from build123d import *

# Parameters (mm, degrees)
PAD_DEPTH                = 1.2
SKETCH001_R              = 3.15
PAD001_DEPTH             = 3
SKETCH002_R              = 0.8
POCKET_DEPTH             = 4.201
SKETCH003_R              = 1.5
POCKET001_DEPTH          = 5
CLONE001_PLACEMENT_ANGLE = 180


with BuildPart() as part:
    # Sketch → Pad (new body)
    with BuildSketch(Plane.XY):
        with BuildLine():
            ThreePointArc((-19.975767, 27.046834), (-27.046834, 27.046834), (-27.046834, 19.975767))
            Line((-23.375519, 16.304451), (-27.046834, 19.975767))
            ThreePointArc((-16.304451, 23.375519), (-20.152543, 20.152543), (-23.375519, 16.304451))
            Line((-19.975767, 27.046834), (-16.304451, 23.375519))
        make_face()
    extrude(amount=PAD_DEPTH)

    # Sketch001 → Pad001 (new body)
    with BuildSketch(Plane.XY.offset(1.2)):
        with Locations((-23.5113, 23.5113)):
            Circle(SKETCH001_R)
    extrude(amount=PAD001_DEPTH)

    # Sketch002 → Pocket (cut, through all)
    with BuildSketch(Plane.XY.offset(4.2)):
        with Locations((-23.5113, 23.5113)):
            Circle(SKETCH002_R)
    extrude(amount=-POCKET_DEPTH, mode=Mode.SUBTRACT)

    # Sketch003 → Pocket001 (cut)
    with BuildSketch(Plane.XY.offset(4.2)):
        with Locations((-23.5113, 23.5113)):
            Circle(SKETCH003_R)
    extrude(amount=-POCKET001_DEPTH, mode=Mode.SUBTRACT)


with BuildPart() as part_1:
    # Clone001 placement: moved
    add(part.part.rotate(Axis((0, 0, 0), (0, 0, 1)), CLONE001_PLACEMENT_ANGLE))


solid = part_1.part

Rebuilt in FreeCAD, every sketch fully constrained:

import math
import FreeCAD as App
import Part
import Sketcher

V = App.Vector
Q = App.Units.Quantity

doc = App.newDocument("Part")
body = doc.addObject("PartDesign::Body", "Body")

sketch1 = body.newObject("Sketcher::SketchObject", "Sketch")
sketch1.AttachmentSupport = (doc.getObject("XY_Plane"), [""])
sketch1.MapMode = "FlatFace"
sketch1.addGeometry([
    Part.ArcOfCircle(Part.Circle(V(-23.5, 23.5, 0), V(0, 0, 1), 5), math.radians(45), math.radians(225)),
    Part.LineSegment(V(-27, 20, 0), V(-23.4, 16.3, 0)),
    Part.ArcOfCircle(Part.Circle(V(0, 0, 0), V(0, 0, 1), 28.5), math.radians(125), math.radians(145)),
    Part.LineSegment(V(-16.3, 23.4, 0), V(-20, 27, 0)),
], False)
sketch1.addConstraint([
    Sketcher.Constraint("Tangent", 0, 2, 1, 1),
    Sketcher.Constraint("Coincident", 1, 2, 2, 2),
    Sketcher.Constraint("Coincident", 2, 1, 3, 1),
    Sketcher.Constraint("Tangent", 3, 2, 0, 1),
    Sketcher.Constraint("Parallel", 1, 3),
    Sketcher.Constraint("Equal", 1, 3),
    Sketcher.Constraint("Radius", 0, Q("4.999999 mm")),
    Sketcher.Constraint("Angle", 1, Q("-45.000008 deg")),
    Sketcher.Constraint("Radius", 2, Q("28.500036 mm")),
    Sketcher.Constraint("DistanceX", 0, 3, -1, 1, Q("23.511301 mm")),
    Sketcher.Constraint("DistanceY", -1, 1, 0, 3, Q("23.511301 mm")),
    Sketcher.Constraint("DistanceX", 1, 2, -1, 1, Q("23.375519 mm")),
])
pad1 = body.newObject("PartDesign::Pad", "Pad")
pad1.Profile = sketch1
pad1.Length = 1.2

sketch2 = body.newObject("Sketcher::SketchObject", "Sketch001")
sketch2.AttachmentSupport = (doc.getObject("XY_Plane"), [""])
sketch2.MapMode = "FlatFace"
sketch2.AttachmentOffset = App.Placement(V(0, 0, 1.2), App.Rotation())
sketch2.addGeometry(Part.Circle(V(-23.5, 23.5, 0), V(0, 0, 1), 3.1), False)
sketch2.addConstraint([
    Sketcher.Constraint("Diameter", 0, Q("6.3 mm")),
    Sketcher.Constraint("DistanceX", 0, 3, -1, 1, Q("23.5113 mm")),
    Sketcher.Constraint("DistanceY", -1, 1, 0, 3, Q("23.5113 mm")),
])
pad2 = body.newObject("PartDesign::Pad", "Pad001")
pad2.Profile = sketch2
pad2.Length = 3

sketch3 = body.newObject("Sketcher::SketchObject", "Sketch002")
sketch3.AttachmentSupport = (doc.getObject("XY_Plane"), [""])
sketch3.MapMode = "FlatFace"
sketch3.AttachmentOffset = App.Placement(V(0, 0, 4.2), App.Rotation())
sketch3.addGeometry(Part.Circle(V(-23.5, 23.5, 0), V(0, 0, 1), 0.8), False)
sketch3.addConstraint([
    Sketcher.Constraint("Diameter", 0, Q("1.6 mm")),
    Sketcher.Constraint("DistanceX", 0, 3, -1, 1, Q("23.5113 mm")),
    Sketcher.Constraint("DistanceY", -1, 1, 0, 3, Q("23.5113 mm")),
])
pocket1 = body.newObject("PartDesign::Pocket", "Pocket")
pocket1.Profile = sketch3
pocket1.Type = "ThroughAll"

sketch4 = body.newObject("Sketcher::SketchObject", "Sketch003")
sketch4.AttachmentSupport = (doc.getObject("XY_Plane"), [""])
sketch4.MapMode = "FlatFace"
sketch4.AttachmentOffset = App.Placement(V(0, 0, 4.2), App.Rotation())
sketch4.addGeometry(Part.Circle(V(-23.5, 23.5, 0), V(0, 0, 1), 1.5), False)
sketch4.addConstraint([
    Sketcher.Constraint("Diameter", 0, Q("3 mm")),
    Sketcher.Constraint("DistanceX", 0, 3, -1, 1, Q("23.5113 mm")),
    Sketcher.Constraint("DistanceY", -1, 1, 0, 3, Q("23.5113 mm")),
])
pocket2 = body.newObject("PartDesign::Pocket", "Pocket001")
pocket2.Profile = sketch4
pocket2.Length = 5
body2 = doc.addObject("PartDesign::Body", "Body001")
doc.recompute()

body.Placement = App.Placement(V(0, 0, 0), App.Rotation(V(0, 0, 1), 180))
boolean = body2.newObject("PartDesign::Boolean", "Boolean")
boolean.Type = "Fuse"
boolean.addObjects([body])

doc.recompute()
